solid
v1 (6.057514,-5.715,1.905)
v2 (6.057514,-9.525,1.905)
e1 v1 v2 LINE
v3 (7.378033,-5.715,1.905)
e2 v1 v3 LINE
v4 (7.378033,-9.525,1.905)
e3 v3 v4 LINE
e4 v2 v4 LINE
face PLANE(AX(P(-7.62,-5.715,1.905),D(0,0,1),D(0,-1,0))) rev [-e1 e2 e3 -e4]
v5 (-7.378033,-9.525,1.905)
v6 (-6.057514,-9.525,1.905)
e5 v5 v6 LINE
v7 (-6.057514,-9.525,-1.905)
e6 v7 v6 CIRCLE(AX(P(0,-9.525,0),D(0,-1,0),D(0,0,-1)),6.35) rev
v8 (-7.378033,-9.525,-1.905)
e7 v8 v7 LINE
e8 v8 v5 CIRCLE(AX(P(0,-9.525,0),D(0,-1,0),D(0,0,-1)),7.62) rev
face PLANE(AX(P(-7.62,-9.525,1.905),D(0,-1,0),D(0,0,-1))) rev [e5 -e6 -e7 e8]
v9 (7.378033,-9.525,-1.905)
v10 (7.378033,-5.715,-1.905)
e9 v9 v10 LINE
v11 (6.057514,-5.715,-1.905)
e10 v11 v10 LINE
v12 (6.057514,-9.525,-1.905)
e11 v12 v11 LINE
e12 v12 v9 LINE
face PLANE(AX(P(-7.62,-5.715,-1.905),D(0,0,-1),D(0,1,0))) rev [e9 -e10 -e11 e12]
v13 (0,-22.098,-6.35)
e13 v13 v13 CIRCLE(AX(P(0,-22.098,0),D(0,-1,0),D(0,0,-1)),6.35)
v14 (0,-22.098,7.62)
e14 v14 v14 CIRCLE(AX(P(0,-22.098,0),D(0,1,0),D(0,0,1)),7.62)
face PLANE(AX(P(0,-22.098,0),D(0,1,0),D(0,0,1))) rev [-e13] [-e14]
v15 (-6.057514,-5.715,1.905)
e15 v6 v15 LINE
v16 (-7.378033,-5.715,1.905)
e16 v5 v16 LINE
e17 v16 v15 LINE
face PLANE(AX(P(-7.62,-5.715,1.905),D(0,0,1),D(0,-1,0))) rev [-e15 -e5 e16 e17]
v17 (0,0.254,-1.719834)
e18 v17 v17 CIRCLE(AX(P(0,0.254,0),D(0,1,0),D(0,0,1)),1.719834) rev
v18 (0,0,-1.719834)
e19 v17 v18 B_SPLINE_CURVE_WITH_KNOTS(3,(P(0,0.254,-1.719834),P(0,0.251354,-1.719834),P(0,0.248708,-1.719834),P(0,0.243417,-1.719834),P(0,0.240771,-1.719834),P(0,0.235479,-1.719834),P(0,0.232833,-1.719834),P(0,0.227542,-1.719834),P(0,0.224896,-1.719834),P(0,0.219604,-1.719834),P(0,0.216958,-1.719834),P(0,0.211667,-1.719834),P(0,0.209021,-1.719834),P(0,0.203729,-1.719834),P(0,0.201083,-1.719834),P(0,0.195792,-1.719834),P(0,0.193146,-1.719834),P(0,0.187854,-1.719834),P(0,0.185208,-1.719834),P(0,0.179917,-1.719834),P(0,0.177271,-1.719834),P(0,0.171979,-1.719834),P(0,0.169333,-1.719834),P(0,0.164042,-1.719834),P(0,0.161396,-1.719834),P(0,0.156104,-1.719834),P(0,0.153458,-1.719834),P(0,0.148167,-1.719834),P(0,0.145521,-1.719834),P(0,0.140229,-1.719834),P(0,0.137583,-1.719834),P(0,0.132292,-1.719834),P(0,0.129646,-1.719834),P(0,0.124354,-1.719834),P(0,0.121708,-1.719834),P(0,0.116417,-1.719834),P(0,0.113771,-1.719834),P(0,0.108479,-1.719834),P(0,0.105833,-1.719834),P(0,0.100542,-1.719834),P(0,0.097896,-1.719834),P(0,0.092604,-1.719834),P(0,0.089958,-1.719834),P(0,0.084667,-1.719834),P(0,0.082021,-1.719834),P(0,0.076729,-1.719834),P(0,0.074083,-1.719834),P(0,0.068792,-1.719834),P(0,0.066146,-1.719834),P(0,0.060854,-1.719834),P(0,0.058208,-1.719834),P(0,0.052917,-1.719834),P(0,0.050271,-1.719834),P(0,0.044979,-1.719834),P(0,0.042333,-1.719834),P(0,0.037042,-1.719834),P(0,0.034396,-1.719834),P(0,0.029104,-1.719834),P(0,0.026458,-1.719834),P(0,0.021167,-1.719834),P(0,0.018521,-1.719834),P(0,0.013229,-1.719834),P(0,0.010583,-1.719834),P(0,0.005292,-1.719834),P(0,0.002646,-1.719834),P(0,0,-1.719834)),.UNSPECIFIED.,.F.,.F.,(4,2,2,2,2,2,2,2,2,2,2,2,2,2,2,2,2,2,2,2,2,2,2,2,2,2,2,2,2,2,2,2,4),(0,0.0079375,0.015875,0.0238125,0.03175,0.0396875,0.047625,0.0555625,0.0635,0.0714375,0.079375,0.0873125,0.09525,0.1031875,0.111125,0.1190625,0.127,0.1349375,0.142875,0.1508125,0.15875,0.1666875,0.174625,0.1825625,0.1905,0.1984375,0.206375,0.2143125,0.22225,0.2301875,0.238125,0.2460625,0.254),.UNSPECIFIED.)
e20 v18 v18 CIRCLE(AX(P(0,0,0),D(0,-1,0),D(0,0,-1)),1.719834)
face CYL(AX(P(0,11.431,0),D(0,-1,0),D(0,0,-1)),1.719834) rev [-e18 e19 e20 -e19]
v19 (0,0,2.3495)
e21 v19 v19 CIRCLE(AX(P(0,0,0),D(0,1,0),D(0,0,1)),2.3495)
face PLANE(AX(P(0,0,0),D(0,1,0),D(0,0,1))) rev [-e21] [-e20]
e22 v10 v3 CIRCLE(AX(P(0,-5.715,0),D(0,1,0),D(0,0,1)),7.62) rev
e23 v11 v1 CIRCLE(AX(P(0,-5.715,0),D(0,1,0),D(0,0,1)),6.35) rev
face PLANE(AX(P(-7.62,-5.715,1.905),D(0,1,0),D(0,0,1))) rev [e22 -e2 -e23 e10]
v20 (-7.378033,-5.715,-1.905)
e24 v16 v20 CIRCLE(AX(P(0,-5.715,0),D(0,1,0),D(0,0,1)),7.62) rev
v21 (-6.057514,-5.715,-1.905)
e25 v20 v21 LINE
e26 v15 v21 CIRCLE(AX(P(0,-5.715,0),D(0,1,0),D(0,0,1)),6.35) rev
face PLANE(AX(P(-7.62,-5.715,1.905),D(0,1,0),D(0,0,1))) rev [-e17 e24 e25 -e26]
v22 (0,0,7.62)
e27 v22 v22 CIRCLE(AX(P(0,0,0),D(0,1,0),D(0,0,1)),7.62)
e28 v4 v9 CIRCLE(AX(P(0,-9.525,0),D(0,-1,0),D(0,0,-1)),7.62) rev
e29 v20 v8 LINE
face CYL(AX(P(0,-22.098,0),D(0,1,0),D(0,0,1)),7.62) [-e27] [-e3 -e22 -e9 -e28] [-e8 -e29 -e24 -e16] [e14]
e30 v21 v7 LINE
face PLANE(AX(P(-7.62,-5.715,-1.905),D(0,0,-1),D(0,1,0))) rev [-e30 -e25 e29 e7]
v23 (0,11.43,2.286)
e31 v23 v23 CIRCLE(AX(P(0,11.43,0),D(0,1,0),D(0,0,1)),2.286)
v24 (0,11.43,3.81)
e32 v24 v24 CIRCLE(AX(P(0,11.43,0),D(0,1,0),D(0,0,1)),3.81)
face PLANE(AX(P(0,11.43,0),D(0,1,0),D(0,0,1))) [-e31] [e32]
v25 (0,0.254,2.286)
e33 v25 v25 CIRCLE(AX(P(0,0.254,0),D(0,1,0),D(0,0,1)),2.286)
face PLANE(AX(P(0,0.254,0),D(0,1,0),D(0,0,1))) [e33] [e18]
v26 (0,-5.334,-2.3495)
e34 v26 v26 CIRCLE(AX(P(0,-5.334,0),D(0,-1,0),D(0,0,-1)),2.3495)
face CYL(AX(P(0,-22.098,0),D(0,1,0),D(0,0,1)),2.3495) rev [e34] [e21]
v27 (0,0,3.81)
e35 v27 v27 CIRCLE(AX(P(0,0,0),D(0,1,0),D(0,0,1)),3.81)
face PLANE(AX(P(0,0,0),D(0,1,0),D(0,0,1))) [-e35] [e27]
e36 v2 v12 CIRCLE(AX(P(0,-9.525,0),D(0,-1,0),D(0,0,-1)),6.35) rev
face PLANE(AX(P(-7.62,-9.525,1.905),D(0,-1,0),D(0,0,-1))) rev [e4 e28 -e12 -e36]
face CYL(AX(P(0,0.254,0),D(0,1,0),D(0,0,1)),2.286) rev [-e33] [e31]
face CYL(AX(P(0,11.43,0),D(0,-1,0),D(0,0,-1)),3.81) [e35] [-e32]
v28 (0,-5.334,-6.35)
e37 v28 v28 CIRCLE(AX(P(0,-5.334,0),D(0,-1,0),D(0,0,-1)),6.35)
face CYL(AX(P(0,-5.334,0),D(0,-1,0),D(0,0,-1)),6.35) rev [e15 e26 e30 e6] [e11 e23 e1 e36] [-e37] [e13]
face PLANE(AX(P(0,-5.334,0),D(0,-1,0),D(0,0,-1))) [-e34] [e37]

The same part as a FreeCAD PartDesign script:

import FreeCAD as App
import Part
import Sketcher
Q = App.Units.Quantity

doc = App.newDocument("Part")
body = doc.addObject("PartDesign::Body", "Body")

sketch1 = doc.addObject("Sketcher::SketchObject", "Sketch")
body.addObject(sketch1)
sketch1.AttachmentSupport = (doc.XZ_Plane, [""])
sketch1.MapMode = "FlatFace"
sketch1.addGeometry(Part.Circle(App.Vector(0, 0, 0), App.Vector(0, 0, 1), 8), False)
sketch1.addConstraint([
    Sketcher.Constraint("Coincident", 0, 3, -1, 1),
    Sketcher.Constraint("Diameter", 0, Q("0.6 in")),
])
pad1 = doc.addObject("PartDesign::Pad", "Pad")
body.addObject(pad1)
pad1.Profile = sketch1
pad1.Length = Q("0.87 in")

sketch2 = doc.addObject("Sketcher::SketchObject", "Sketch001")
body.addObject(sketch2)
sketch2.AttachmentSupport = (doc.XZ_Plane, [""])
sketch2.MapMode = "FlatFace"
sketch2.AttachmentOffset = App.Placement(App.Vector(0, 0, 0.87 * 25.4), App.Rotation())
sketch2.addGeometry(Part.Circle(App.Vector(0, 0, 0), App.Vector(0, 0, 1), 6), False)
sketch2.addConstraint([
    Sketcher.Constraint("Coincident", 0, 3, -1, 1),
    Sketcher.Constraint("Diameter", 0, Q("0.5 in")),
])
pocket1 = doc.addObject("PartDesign::Pocket", "Pocket")
body.addObject(pocket1)
pocket1.Profile = sketch2
pocket1.Length = Q("0.66 in")

sketch3 = doc.addObject("Sketcher::SketchObject", "Sketch002")
body.addObject(sketch3)
sketch3.AttachmentSupport = (doc.XZ_Plane, [""])
sketch3.MapMode = "FlatFace"
sketch3.addGeometry(Part.Circle(App.Vector(0, 0, 0), App.Vector(0, 0, 1), 2.3), False)
sketch3.addConstraint([
    Sketcher.Constraint("Coincident", 0, 3, -1, 1),
    Sketcher.Constraint("Diameter", 0, Q("0.185 in")),
])
pocket2 = doc.addObject("PartDesign::Pocket", "Pocket001")
body.addObject(pocket2)
pocket2.Profile = sketch3
pocket2.Type = "ThroughAll"
pocket2.Midplane = True

sketch4 = doc.addObject("Sketcher::SketchObject", "Sketch003")
body.addObject(sketch4)
sketch4.AttachmentSupport = (doc.XZ_Plane, [""])
sketch4.MapMode = "FlatFace"
sketch4.addGeometry(Part.Circle(App.Vector(0, 0, 0), App.Vector(0, 0, 1), 3.8), False)
sketch4.addConstraint([
    Sketcher.Constraint("Coincident", 0, 3, -1, 1),
    Sketcher.Constraint("Diameter", 0, Q("0.3 in")),
])
pad2 = doc.addObject("PartDesign::Pad", "Pad001")
body.addObject(pad2)
pad2.Profile = sketch4
pad2.Length = Q("0.45 in")
pad2.Reversed = True

sketch5 = doc.addObject("Sketcher::SketchObject", "Sketch004")
body.addObject(sketch5)
sketch5.AttachmentSupport = (doc.XZ_Plane, [""])
sketch5.MapMode = "FlatFace"
sketch5.AttachmentOffset = App.Placement(App.Vector(0, 0, -0.45 * 25.4), App.Rotation())
sketch5.addGeometry(Part.Circle(App.Vector(0, 0, 0), App.Vector(0, 0, 1), 2.3), False)
sketch5.addConstraint([
    Sketcher.Constraint("Coincident", 0, 3, -1, 1),
    Sketcher.Constraint("Diameter", 0, Q("0.18 in")),
])
pocket3 = doc.addObject("PartDesign::Pocket", "Pocket002")
body.addObject(pocket3)
pocket3.Profile = sketch5
pocket3.Length = Q("0.44 in")
pocket3.Reversed = True

sketch6 = doc.addObject("Sketcher::SketchObject", "Sketch005")
body.addObject(sketch6)
sketch6.AttachmentSupport = (doc.XZ_Plane, [""])
sketch6.MapMode = "FlatFace"
sketch6.addGeometry(Part.Circle(App.Vector(0, 0, 0), App.Vector(0, 0, 1), 1.7), False)
sketch6.addConstraint([
    Sketcher.Constraint("Coincident", 0, 3, -1, 1),
    Sketcher.Constraint("Diameter", 0, 3.439667),
])
pocket4 = doc.addObject("PartDesign::Pocket", "Pocket003")
body.addObject(pocket4)
pocket4.Profile = sketch6
pocket4.Type = "UpToFirst"

sketch7 = doc.addObject("Sketcher::SketchObject", "Sketch006")
body.addObject(sketch7)
sketch7.AttachmentSupport = (doc.YZ_Plane, [""])
sketch7.MapMode = "FlatFace"
sketch7.addGeometry([
    Part.LineSegment(App.Vector(-5.7, 1.9, 0), App.Vector(-9.5, 1.9, 0)),
    Part.LineSegment(App.Vector(-9.5, 1.9, 0), App.Vector(-9.5, -1.9, 0)),
    Part.LineSegment(App.Vector(-9.5, -1.9, 0), App.Vector(-5.7, -1.9, 0)),
    Part.LineSegment(App.Vector(-5.7, -1.9, 0), App.Vector(-5.7, 1.9, 0)),
], False)
sketch7.addConstraint([
    Sketcher.Constraint("Coincident", 0, 2, 1, 1),
    Sketcher.Constraint("Coincident", 1, 2, 2, 1),
    Sketcher.Constraint("Coincident", 2, 2, 3, 1),
    Sketcher.Constraint("Coincident", 3, 2, 0, 1),
    Sketcher.Constraint("Horizontal", 0),
    Sketcher.Constraint("Vertical", 1),
    Sketcher.Constraint("Horizontal", 2),
    Sketcher.Constraint("Vertical", 3),
    Sketcher.Constraint("Equal", 2, 1),
    Sketcher.Constraint("DistanceX", 0, 2, 0, 1, Q("0.15 in")),
    Sketcher.Constraint("DistanceX", 0, 2, -1, 1, Q("0.375 in")),
    Sketcher.Constraint("DistanceY", -1, 1, 0, 2, Q("0.075 in")),
])
pocket5 = doc.addObject("PartDesign::Pocket", "Pocket004")
body.addObject(pocket5)
pocket5.Profile = sketch7
pocket5.Type = "ThroughAll"
pocket5.Midplane = True

doc.recompute()
